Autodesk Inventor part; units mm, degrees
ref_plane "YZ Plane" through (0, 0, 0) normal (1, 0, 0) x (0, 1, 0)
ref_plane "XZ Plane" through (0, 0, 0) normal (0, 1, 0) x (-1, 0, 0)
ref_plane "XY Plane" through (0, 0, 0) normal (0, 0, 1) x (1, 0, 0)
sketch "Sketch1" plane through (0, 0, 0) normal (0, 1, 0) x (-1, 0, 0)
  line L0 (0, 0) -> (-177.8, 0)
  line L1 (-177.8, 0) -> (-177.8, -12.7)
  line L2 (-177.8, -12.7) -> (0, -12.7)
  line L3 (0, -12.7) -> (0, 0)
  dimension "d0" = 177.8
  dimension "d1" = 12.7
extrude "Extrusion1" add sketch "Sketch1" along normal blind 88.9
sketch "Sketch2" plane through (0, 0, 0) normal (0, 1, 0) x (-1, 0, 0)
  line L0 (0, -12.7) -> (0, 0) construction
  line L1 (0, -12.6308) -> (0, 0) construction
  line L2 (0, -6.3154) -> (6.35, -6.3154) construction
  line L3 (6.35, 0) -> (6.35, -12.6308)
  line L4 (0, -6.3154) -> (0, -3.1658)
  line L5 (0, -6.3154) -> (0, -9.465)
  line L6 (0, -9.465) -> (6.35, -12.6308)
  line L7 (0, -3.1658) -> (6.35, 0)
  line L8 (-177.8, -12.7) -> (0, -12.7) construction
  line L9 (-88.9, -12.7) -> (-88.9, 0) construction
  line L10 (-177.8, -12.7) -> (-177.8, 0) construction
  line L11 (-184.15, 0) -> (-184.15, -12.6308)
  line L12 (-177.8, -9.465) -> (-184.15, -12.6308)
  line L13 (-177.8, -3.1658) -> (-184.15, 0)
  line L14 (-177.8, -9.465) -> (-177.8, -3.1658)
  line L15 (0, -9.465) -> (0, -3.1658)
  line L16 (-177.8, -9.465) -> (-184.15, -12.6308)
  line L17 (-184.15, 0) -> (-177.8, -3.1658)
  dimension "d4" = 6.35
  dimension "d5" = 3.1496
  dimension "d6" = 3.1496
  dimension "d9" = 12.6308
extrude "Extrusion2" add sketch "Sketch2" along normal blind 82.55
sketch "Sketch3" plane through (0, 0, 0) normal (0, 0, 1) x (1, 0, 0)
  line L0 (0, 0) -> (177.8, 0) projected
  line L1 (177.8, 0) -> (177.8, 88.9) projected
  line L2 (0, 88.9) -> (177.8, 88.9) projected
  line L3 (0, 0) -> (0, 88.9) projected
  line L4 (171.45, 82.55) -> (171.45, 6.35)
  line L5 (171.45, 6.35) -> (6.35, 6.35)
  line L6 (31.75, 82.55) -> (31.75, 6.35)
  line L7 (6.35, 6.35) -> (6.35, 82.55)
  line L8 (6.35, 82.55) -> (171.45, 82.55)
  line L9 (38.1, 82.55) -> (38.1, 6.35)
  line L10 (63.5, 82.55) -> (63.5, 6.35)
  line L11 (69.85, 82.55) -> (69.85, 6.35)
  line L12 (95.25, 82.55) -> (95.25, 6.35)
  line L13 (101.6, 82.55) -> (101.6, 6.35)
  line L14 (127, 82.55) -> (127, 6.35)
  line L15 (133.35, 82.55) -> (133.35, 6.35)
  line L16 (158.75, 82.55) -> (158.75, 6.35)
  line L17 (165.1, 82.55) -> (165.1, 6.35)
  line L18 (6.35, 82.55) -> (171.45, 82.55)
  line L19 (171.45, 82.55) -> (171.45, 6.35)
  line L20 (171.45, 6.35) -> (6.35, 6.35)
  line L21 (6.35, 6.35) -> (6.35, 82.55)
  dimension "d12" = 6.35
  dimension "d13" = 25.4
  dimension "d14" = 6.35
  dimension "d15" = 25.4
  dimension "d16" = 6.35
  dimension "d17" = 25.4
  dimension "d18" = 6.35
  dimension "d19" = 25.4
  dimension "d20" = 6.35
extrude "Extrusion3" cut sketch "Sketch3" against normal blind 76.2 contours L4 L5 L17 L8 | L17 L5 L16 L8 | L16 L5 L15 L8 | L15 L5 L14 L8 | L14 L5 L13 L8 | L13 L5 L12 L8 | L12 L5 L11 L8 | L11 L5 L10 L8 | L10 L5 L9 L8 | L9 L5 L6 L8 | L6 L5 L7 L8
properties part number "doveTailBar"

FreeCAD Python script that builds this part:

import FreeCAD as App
import Part
import Sketcher
Q = App.Units.Quantity

doc = App.newDocument("Part")
body = doc.addObject("PartDesign::Body", "Body")

sketch1 = body.newObject("Sketcher::SketchObject", "Sketch")
sketch1.AttachmentSupport = (doc.getObject("XZ_Plane"), [""])
sketch1.MapMode = "FlatFace"
sketch1.addGeometry(Part.LineSegment(App.Vector(0, -12.7, 0), App.Vector(0, 0, 0)), False)
sketch1.addGeometry(Part.LineSegment(App.Vector(0, 0, 0), App.Vector(177.8, 0, 0)), False)
sketch1.addGeometry(Part.LineSegment(App.Vector(177.8, 0, 0), App.Vector(177.8, -12.7, 0)), False)
sketch1.addGeometry(Part.LineSegment(App.Vector(177.8, -12.7, 0), App.Vector(0, -12.7, 0)), False)
sketch1.addConstraint(Sketcher.Constraint("Coincident", 0, 2, 1, 1))
sketch1.addConstraint(Sketcher.Constraint("Coincident", 1, 2, 2, 1))
sketch1.addConstraint(Sketcher.Constraint("Coincident", 2, 2, 3, 1))
sketch1.addConstraint(Sketcher.Constraint("Coincident", 3, 2, 0, 1))
sketch1.addConstraint(Sketcher.Constraint("Vertical", 0))
sketch1.addConstraint(Sketcher.Constraint("Horizontal", 1))
sketch1.addConstraint(Sketcher.Constraint("Vertical", 2))
sketch1.addConstraint(Sketcher.Constraint("Horizontal", 3))
sketch1.addConstraint(Sketcher.Constraint("Coincident", 0, 2, -1, 1))
sketch1.addConstraint(Sketcher.Constraint("DistanceX", 1, 1, 1, 2, Q("7 in")))
sketch1.addConstraint(Sketcher.Constraint("DistanceY", 0, 1, 0, 2, Q("0.5 in")))
pad1 = body.newObject("PartDesign::Pad", "Pad")
pad1.Profile = sketch1
pad1.Length = Q("3.5 in")
pad1.Reversed = True

sketch2 = body.newObject("Sketcher::SketchObject", "Sketch001")
sketch2.AttachmentSupport = (doc.getObject("XZ_Plane"), [""])
sketch2.MapMode = "FlatFace"
sketch2.addGeometry(Part.LineSegment(App.Vector(-6.35, -12.6308, 0), App.Vector(-6.35, 0, 0)), False)
sketch2.addGeometry(Part.LineSegment(App.Vector(-6.35, 0, 0), App.Vector(0, -3.1658, 0)), False)
sketch2.addGeometry(Part.LineSegment(App.Vector(0, -3.1658, 0), App.Vector(0, -9.465, 0)), False)
sketch2.addGeometry(Part.LineSegment(App.Vector(0, -9.465, 0), App.Vector(-6.35, -12.6308, 0)), False)
sketch2.addGeometry(Part.LineSegment(App.Vector(177.8, -3.1658, 0), App.Vector(184.15, 0, 0)), False)
sketch2.addGeometry(Part.LineSegment(App.Vector(184.15, 0, 0), App.Vector(184.15, -12.6308, 0)), False)
sketch2.addGeometry(Part.LineSegment(App.Vector(184.15, -12.6308, 0), App.Vector(177.8, -9.465, 0)), False)
sketch2.addGeometry(Part.LineSegment(App.Vector(177.8, -9.465, 0), App.Vector(177.8, -3.1658, 0)), False)
sketch2.addConstraint(Sketcher.Constraint("Coincident", 0, 2, 1, 1))
sketch2.addConstraint(Sketcher.Constraint("Coincident", 1, 2, 2, 1))
sketch2.addConstraint(Sketcher.Constraint("Coincident", 2, 2, 3, 1))
sketch2.addConstraint(Sketcher.Constraint("Coincident", 3, 2, 0, 1))
sketch2.addConstraint(Sketcher.Constraint("Coincident", 4, 2, 5, 1))
sketch2.addConstraint(Sketcher.Constraint("Coincident", 5, 2, 6, 1))
sketch2.addConstraint(Sketcher.Constraint("Coincident", 6, 2, 7, 1))
sketch2.addConstraint(Sketcher.Constraint("Coincident", 7, 2, 4, 1))
sketch2.addConstraint(Sketcher.Constraint("Vertical", 0))
sketch2.addConstraint(Sketcher.Constraint("Vertical", 2))
sketch2.addConstraint(Sketcher.Constraint("Vertical", 5))
sketch2.addConstraint(Sketcher.Constraint("Vertical", 7))
sketch2.addConstraint(Sketcher.Constraint("PointOnObject", 0, 2, -1))
sketch2.addConstraint(Sketcher.Constraint("PointOnObject", 1, 2, -2))
sketch2.addConstraint(Sketcher.Constraint("PointOnObject", 4, 2, -1))
sketch2.addConstraint(Sketcher.Constraint("Parallel", 3, 4))
sketch2.addConstraint(Sketcher.Constraint("Parallel", 1, 6))
sketch2.addConstraint(Sketcher.Constraint("Horizontal", 3, 2, 5, 2))
sketch2.addConstraint(Sketcher.Constraint("Horizontal", 2, 2, 6, 2))
sketch2.addConstraint(Sketcher.Constraint("Horizontal", 1, 2, 7, 2))
sketch2.addConstraint(Sketcher.Constraint("DistanceX", 0, 2, -1, 1, Q("0.25 in")))
sketch2.addConstraint(Sketcher.Constraint("DistanceX", -1, 1, 6, 2, Q("7 in")))
sketch2.addConstraint(Sketcher.Constraint("DistanceY", 0, 1, 0, 2, Q("12.6308 mm")))
sketch2.addConstraint(Sketcher.Constraint("DistanceY", 2, 2, 2, 1, Q("0.248 in")))
pad2 = body.newObject("PartDesign::Pad", "Pad001")
pad2.Profile = sketch2
pad2.Length = Q("3.25 in")
pad2.Reversed = True

sketch3 = body.newObject("Sketcher::SketchObject", "Sketch002")
sketch3.AttachmentSupport = (doc.getObject("XY_Plane"), [""])
sketch3.MapMode = "FlatFace"
sketch3.addGeometry(Part.LineSegment(App.Vector(171.45, 6.35, 0), App.Vector(171.45, 82.55, 0)), False)
sketch3.addGeometry(Part.LineSegment(App.Vector(171.45, 82.55, 0), App.Vector(6.35, 82.55, 0)), False)
sketch3.addGeometry(Part.LineSegment(App.Vector(6.35, 82.55, 0), App.Vector(6.35, 6.35, 0)), False)
sketch3.addGeometry(Part.LineSegment(App.Vector(6.35, 6.35, 0), App.Vector(171.45, 6.35, 0)), False)
sketch3.addConstraint(Sketcher.Constraint("Coincident", 0, 2, 1, 1))
sketch3.addConstraint(Sketcher.Constraint("Coincident", 1, 2, 2, 1))
sketch3.addConstraint(Sketcher.Constraint("Coincident", 2, 2, 3, 1))
sketch3.addConstraint(Sketcher.Constraint("Coincident", 3, 2, 0, 1))
sketch3.addConstraint(Sketcher.Constraint("Vertical", 0))
sketch3.addConstraint(Sketcher.Constraint("Horizontal", 1))
sketch3.addConstraint(Sketcher.Constraint("Vertical", 2))
sketch3.addConstraint(Sketcher.Constraint("Horizontal", 3))
sketch3.addConstraint(Sketcher.Constraint("DistanceY", 0, 1, 0, 2, Q("3 in")))
sketch3.addConstraint(Sketcher.Constraint("DistanceX", -1, 1, 1, 2, Q("0.25 in")))
sketch3.addConstraint(Sketcher.Constraint("DistanceY", -1, 1, 2, 2, Q("0.25 in")))
sketch3.addConstraint(Sketcher.Constraint("DistanceX", 1, 2, 1, 1, Q("6.5 in")))
pocket1 = body.newObject("PartDesign::Pocket", "Pocket")
pocket1.Profile = sketch3
pocket1.Length = Q("3 in")

doc.recompute()
